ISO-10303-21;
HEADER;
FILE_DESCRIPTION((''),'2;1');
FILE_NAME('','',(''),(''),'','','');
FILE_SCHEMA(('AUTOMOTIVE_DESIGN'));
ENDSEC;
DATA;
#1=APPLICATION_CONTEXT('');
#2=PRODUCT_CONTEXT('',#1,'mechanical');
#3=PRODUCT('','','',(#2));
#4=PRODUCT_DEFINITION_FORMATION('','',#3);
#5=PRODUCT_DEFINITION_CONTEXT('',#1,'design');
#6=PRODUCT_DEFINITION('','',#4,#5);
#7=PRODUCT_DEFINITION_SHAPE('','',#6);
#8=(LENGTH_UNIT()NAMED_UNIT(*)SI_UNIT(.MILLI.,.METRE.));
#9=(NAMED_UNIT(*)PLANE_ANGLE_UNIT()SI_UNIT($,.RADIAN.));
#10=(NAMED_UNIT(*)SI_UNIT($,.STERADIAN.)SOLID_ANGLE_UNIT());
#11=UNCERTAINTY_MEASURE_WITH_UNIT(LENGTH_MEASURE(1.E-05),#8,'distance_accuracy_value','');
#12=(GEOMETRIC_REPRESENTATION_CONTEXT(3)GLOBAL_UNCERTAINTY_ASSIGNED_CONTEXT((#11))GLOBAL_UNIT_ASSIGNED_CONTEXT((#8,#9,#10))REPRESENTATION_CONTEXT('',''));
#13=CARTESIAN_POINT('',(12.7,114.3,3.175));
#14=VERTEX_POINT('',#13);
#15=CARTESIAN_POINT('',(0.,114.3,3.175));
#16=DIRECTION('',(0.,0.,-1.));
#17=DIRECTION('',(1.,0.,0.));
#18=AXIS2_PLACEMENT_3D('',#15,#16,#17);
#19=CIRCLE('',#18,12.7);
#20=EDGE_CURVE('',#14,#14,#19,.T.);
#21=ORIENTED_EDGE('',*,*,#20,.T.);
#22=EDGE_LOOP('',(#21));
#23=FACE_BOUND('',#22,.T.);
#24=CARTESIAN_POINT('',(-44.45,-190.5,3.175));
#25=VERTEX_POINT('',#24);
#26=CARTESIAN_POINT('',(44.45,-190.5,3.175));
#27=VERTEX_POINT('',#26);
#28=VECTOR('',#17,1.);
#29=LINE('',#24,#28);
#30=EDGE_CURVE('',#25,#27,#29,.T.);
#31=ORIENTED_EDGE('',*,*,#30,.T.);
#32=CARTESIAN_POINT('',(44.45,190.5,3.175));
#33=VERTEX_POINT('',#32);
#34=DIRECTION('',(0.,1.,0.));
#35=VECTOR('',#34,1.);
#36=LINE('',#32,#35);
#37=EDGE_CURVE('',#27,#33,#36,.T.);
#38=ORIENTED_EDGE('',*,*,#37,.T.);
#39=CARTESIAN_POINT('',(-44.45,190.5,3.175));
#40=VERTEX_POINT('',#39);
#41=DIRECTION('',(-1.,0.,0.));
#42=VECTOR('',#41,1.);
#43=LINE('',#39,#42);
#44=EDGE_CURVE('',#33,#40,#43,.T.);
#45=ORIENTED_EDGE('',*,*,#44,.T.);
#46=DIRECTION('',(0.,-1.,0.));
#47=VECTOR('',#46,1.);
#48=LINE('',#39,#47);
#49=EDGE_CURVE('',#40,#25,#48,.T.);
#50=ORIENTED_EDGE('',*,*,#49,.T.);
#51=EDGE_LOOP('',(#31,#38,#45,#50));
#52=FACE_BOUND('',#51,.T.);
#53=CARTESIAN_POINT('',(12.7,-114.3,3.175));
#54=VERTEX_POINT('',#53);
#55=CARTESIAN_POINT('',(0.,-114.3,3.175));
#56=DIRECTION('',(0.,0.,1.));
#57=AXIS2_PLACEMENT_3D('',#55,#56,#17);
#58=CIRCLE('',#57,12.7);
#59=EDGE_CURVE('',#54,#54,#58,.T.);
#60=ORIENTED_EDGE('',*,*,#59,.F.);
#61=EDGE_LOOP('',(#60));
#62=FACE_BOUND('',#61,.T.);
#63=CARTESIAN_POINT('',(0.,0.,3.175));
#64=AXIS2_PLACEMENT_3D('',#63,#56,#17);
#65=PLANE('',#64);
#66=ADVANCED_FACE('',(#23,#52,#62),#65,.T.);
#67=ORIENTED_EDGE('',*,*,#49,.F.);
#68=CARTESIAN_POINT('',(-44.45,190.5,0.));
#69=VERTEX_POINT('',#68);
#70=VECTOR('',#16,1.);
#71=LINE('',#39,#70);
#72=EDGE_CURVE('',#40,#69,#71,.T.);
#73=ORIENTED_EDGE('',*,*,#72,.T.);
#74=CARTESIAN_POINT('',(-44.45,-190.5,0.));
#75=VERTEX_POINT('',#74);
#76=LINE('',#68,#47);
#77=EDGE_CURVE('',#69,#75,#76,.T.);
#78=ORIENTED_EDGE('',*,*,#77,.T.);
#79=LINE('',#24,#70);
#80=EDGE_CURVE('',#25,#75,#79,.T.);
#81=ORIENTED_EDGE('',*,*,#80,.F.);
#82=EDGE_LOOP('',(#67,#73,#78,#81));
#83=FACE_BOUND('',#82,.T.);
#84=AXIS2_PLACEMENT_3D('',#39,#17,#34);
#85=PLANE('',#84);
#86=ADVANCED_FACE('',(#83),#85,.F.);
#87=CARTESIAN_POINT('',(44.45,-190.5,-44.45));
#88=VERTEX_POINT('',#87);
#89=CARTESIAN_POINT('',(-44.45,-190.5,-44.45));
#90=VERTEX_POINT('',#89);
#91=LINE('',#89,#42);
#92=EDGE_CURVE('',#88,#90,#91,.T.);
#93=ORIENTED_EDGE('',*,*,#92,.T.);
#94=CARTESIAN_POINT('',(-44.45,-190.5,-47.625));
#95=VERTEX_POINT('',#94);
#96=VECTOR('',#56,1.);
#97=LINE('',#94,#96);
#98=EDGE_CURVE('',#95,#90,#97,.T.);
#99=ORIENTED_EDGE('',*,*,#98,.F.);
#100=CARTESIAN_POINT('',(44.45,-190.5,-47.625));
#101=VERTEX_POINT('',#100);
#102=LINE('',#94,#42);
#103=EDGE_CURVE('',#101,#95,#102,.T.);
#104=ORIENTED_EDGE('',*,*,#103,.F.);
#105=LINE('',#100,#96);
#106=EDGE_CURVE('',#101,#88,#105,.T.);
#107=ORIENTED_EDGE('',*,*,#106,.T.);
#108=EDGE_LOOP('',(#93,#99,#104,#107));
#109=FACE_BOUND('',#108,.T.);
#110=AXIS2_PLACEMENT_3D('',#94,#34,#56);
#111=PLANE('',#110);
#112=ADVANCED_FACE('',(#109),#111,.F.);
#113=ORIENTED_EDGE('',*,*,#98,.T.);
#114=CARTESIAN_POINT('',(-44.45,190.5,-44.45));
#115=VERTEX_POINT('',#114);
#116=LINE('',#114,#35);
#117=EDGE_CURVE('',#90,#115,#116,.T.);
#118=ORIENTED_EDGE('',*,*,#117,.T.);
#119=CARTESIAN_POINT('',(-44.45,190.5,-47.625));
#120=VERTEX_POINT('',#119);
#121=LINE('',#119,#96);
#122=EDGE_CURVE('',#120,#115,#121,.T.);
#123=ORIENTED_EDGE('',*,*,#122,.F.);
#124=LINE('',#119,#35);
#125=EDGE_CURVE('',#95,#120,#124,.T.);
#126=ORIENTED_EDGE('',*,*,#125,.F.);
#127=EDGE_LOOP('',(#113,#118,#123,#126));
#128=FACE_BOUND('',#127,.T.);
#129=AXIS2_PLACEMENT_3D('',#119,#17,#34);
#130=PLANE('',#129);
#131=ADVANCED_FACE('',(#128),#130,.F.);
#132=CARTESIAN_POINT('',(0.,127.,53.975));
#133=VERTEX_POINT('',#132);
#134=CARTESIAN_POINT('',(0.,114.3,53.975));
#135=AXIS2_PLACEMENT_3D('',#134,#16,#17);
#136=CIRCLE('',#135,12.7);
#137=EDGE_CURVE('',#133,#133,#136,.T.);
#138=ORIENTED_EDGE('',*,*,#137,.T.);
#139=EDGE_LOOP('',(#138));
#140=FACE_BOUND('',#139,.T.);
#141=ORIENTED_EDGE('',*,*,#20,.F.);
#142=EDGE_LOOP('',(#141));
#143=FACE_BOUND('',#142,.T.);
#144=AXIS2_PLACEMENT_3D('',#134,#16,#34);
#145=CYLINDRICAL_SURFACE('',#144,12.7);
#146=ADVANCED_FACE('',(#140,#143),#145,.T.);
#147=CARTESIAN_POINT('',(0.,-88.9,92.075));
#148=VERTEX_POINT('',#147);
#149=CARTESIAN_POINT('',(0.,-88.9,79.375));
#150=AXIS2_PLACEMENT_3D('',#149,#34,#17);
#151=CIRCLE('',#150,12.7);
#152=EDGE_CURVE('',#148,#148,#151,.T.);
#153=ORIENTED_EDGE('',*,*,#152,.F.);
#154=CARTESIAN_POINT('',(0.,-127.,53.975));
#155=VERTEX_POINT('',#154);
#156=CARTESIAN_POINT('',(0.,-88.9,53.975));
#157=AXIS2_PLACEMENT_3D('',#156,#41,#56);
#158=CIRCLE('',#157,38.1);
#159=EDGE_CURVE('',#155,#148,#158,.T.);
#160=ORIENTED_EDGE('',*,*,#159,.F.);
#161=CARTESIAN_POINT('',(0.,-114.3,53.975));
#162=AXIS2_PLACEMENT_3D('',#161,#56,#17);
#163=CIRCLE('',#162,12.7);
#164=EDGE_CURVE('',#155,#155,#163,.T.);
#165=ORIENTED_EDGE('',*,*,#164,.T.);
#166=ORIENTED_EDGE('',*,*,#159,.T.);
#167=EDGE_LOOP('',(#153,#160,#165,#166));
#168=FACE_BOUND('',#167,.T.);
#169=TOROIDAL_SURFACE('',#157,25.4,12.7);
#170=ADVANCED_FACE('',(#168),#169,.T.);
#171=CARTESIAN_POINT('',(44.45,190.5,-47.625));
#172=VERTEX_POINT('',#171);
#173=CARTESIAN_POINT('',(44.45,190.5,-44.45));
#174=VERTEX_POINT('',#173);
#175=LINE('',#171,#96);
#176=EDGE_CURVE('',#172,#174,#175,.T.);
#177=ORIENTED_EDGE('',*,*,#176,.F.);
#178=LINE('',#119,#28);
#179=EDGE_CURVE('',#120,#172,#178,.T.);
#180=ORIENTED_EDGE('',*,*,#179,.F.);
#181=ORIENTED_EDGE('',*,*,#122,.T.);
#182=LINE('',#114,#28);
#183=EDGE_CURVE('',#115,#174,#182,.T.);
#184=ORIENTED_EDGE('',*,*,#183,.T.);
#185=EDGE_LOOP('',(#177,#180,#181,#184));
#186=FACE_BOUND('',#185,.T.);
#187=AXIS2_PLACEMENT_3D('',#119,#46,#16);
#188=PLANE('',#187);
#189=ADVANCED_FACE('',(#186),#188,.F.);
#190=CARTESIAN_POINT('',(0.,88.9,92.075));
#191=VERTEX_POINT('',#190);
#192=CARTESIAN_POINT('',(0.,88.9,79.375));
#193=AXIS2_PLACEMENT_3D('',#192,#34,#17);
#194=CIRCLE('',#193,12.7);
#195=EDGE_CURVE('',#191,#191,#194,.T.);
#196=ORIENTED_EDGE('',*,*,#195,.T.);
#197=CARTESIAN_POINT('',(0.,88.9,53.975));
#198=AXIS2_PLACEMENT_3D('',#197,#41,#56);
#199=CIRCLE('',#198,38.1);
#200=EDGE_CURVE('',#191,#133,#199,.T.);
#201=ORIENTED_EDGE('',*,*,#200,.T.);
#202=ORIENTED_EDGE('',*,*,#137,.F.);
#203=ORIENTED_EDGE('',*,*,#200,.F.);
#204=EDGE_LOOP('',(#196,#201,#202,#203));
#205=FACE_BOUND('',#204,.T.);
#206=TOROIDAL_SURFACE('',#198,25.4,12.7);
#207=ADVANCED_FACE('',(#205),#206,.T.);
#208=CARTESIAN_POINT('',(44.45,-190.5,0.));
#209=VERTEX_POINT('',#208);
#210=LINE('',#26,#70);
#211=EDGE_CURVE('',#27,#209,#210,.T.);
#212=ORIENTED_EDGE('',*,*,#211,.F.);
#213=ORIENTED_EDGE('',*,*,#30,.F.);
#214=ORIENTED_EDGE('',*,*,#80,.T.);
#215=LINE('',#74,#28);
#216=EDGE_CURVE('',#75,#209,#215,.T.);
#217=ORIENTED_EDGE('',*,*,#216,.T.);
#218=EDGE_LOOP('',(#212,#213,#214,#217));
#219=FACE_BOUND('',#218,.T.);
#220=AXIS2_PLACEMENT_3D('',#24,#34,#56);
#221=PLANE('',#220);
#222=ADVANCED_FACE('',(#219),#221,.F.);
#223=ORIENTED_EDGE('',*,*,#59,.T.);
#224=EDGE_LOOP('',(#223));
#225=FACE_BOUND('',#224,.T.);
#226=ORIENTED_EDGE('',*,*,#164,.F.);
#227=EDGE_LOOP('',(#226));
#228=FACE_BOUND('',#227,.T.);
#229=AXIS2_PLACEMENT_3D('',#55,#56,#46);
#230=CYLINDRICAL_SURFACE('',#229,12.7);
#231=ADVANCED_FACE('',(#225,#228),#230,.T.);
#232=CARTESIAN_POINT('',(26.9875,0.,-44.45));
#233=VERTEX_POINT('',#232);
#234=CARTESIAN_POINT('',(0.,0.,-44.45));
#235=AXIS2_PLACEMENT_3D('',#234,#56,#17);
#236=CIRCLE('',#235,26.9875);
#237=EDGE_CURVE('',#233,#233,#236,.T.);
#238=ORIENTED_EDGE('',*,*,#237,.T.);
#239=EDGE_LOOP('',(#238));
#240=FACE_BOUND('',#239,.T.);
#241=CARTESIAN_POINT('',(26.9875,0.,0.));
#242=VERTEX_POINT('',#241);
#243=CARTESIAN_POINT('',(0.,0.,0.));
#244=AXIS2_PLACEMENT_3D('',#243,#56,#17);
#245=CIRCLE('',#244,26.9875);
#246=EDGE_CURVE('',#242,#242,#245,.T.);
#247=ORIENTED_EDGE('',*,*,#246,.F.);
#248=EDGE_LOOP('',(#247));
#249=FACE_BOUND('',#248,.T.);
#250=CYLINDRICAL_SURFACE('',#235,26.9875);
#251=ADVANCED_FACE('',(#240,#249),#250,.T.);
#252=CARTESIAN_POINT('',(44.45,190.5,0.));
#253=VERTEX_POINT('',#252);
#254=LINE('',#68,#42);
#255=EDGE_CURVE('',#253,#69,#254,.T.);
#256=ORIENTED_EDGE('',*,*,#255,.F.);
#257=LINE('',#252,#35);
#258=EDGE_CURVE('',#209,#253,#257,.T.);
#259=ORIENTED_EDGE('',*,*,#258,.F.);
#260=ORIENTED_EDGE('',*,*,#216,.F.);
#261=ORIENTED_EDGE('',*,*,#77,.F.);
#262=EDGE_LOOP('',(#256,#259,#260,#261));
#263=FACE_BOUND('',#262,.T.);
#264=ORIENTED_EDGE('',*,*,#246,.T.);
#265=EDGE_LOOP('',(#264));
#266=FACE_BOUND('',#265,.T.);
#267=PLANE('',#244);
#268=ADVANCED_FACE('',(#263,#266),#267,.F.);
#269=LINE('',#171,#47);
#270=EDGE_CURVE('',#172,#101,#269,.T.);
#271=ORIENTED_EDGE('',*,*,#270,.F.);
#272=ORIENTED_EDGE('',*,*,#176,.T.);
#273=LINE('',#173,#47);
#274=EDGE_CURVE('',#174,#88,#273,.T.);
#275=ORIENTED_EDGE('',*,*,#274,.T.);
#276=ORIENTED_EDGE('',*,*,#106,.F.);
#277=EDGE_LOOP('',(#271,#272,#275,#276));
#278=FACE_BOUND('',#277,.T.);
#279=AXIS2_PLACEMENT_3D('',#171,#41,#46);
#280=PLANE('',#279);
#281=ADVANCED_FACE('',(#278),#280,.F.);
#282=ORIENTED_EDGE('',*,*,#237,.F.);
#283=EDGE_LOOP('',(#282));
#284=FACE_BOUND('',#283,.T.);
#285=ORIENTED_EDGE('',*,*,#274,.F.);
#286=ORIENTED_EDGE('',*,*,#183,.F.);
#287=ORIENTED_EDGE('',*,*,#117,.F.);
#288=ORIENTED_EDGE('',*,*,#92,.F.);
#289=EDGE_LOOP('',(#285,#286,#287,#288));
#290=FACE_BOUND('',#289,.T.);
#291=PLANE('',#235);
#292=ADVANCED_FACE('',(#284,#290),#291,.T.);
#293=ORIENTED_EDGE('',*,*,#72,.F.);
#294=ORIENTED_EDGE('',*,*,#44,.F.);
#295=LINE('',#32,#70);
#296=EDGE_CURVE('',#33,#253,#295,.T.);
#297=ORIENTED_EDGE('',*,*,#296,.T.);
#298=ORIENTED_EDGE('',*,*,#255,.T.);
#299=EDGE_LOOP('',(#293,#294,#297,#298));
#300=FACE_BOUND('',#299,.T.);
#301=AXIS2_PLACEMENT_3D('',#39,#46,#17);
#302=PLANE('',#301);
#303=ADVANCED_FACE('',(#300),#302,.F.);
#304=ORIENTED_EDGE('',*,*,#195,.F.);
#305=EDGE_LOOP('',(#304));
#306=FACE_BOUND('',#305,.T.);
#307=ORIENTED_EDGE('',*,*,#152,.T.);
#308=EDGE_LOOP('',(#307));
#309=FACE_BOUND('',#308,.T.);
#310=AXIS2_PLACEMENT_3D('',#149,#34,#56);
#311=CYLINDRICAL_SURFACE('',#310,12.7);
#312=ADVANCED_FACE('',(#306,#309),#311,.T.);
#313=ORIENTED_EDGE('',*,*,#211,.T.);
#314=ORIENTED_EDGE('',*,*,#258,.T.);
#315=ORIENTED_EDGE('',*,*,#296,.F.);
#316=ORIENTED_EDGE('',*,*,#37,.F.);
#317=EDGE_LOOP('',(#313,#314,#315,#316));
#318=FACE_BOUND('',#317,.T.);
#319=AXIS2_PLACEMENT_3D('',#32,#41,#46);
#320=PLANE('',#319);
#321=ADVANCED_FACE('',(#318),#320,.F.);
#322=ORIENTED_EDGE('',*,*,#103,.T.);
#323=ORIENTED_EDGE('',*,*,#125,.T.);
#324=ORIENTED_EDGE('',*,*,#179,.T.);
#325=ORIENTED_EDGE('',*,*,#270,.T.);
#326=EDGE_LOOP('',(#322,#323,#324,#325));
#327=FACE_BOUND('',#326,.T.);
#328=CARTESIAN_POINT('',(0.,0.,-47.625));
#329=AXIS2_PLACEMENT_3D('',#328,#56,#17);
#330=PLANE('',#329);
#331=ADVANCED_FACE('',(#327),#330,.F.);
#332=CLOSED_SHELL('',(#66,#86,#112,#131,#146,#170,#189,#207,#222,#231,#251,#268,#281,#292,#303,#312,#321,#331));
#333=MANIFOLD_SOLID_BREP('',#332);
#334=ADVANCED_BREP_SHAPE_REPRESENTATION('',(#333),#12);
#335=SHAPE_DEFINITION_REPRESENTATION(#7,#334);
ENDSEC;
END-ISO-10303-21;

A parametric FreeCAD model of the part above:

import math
import FreeCAD as App
import Part
import Sketcher

V = App.Vector
Q = App.Units.Quantity

doc = App.newDocument("Part")
body = doc.addObject("PartDesign::Body", "Body")

# Sketch on XY plane
sketch1 = body.newObject("Sketcher::SketchObject", "Sketch")
sketch1.AttachmentSupport = (doc.getObject("XY_Plane"), [""])
sketch1.MapMode = "FlatFace"
sketch1.addGeometry(Part.Circle(V(0, 0, 0), V(0, 0, 1), 27), False)
sketch1.addConstraint([
    Sketcher.Constraint("Coincident", 0, 3, -1, 1),
    Sketcher.Constraint("Diameter", 0, Q("2.125 in")),
])
pad1 = body.newObject("PartDesign::Pad", "Pad")
pad1.Profile = sketch1
pad1.Length = Q("1.75 in")
pad1.Reversed = True

# Sketch on XY plane
sketch2 = body.newObject("Sketcher::SketchObject", "Sketch001")
sketch2.AttachmentSupport = (doc.getObject("XY_Plane"), [""])
sketch2.MapMode = "FlatFace"
sketch2.addGeometry([
    Part.LineSegment(V(-44, 190, 0), V(-44, -190, 0)),
    Part.LineSegment(V(-44, -190, 0), V(44, -190, 0)),
    Part.LineSegment(V(44, -190, 0), V(44, 190, 0)),
    Part.LineSegment(V(44, 190, 0), V(-44, 190, 0)),
], False)
sketch2.addConstraint([
    Sketcher.Constraint("Coincident", 0, 2, 1, 1),
    Sketcher.Constraint("Coincident", 1, 2, 2, 1),
    Sketcher.Constraint("Coincident", 2, 2, 3, 1),
    Sketcher.Constraint("Coincident", 3, 2, 0, 1),
    Sketcher.Constraint("Vertical", 0),
    Sketcher.Constraint("Horizontal", 1),
    Sketcher.Constraint("Vertical", 2),
    Sketcher.Constraint("Horizontal", 3),
    Sketcher.Constraint("Symmetric", 0, 2, 2, 2, -1, 1),
    Sketcher.Constraint("DistanceY", 0, 2, 0, 1, Q("15 in")),
    Sketcher.Constraint("DistanceX", 1, 1, 1, 2, Q("3.5 in")),
])
pad2 = body.newObject("PartDesign::Pad", "Pad001")
pad2.Profile = sketch2
pad2.Length = Q("0.125 in")

# Sketch on XY plane
sketch3 = body.newObject("Sketcher::SketchObject", "Sketch002")
sketch3.AttachmentSupport = (doc.getObject("XY_Plane"), [""])
sketch3.MapMode = "FlatFace"
sketch3.AttachmentOffset = App.Placement(V(0, 0, 0.125 * 25.4), App.Rotation())
sketch3.addGeometry(Part.Circle(V(0, -114, 0), V(0, 0, 1), 13), False)
sketch3.addConstraint([
    Sketcher.Constraint("PointOnObject", 0, 3, -2),
    Sketcher.Constraint("Diameter", 0, Q("1 in")),
    Sketcher.Constraint("DistanceY", 0, 3, -1, 1, Q("4.5 in")),
])

# Sketch on YZ plane
sketch4 = body.newObject("Sketcher::SketchObject", "Sketch003")
sketch4.AttachmentSupport = (doc.getObject("YZ_Plane"), [""])
sketch4.MapMode = "FlatFace"
sketch4.addGeometry([
    Part.LineSegment(V(-114, 3, 0), V(-114, 54, 0)),  # 0
    Part.ArcOfCircle(Part.Circle(V(-89, 54, 0), V(0, 0, 1), 25), math.radians(90), math.radians(180)),  # 1
    Part.LineSegment(V(-89, 79, 0), V(89, 79, 0)),  # 2
    Part.ArcOfCircle(Part.Circle(V(89, 54, 0), V(0, 0, 1), 25), math.radians(0), math.radians(90)),  # 3
    Part.LineSegment(V(114, 54, 0), V(114, 3, 0)),  # 4
], False)
sketch4.addConstraint([
    Sketcher.Constraint("Tangent", 0, 2, 1, 2),
    Sketcher.Constraint("Tangent", 1, 1, 2, 1),
    Sketcher.Constraint("Tangent", 2, 2, 3, 2),
    Sketcher.Constraint("Tangent", 3, 1, 4, 1),
    Sketcher.Constraint("Vertical", 0),
    Sketcher.Constraint("Horizontal", 2),
    Sketcher.Constraint("Vertical", 4),
    Sketcher.Constraint("Equal", 1, 3),
    Sketcher.Constraint("Symmetric", 0, 1, 4, 2, -2),
    Sketcher.Constraint("Radius", 1, Q("1 in")),
    Sketcher.Constraint("DistanceX", 2, 1, 2, 2, Q("7 in")),
    Sketcher.Constraint("DistanceY", 0, 1, 0, 2, Q("2 in")),
    Sketcher.Constraint("DistanceY", -1, 1, 1, 3, Q("2.125 in")),
])
doc.recompute()

additivepipe = body.newObject("PartDesign::AdditivePipe", "AdditivePipe")
additivepipe.Profile = sketch3
additivepipe.Spine = (sketch4, ["Edge1", "Edge2", "Edge3", "Edge4", "Edge5"])

# Sketch on XY plane
sketch5 = body.newObject("Sketcher::SketchObject", "Sketch004")
sketch5.AttachmentSupport = (doc.getObject("XY_Plane"), [""])
sketch5.MapMode = "FlatFace"
sketch5.AttachmentOffset = App.Placement(V(0, 0, -1.75 * 25.4), App.Rotation())
sketch5.addGeometry([
    Part.LineSegment(V(44, 190, 0), V(44, -190, 0)),
    Part.LineSegment(V(44, -190, 0), V(-44, -190, 0)),
    Part.LineSegment(V(-44, -190, 0), V(-44, 190, 0)),
    Part.LineSegment(V(-44, 190, 0), V(44, 190, 0)),
], False)
sketch5.addConstraint([
    Sketcher.Constraint("Coincident", 0, 2, 1, 1),
    Sketcher.Constraint("Coincident", 1, 2, 2, 1),
    Sketcher.Constraint("Coincident", 2, 2, 3, 1),
    Sketcher.Constraint("Coincident", 3, 2, 0, 1),
    Sketcher.Constraint("Vertical", 0),
    Sketcher.Constraint("Horizontal", 1),
    Sketcher.Constraint("Vertical", 2),
    Sketcher.Constraint("Horizontal", 3),
    Sketcher.Constraint("Symmetric", 0, 2, 2, 2, -1, 1),
    Sketcher.Constraint("DistanceY", 0, 2, 0, 1, Q("15 in")),
    Sketcher.Constraint("DistanceX", 1, 2, 1, 1, Q("3.5 in")),
])
pad3 = body.newObject("PartDesign::Pad", "Pad002")
pad3.Profile = sketch5
pad3.Length = Q("0.125 in")
pad3.Reversed = True

doc.recompute()
